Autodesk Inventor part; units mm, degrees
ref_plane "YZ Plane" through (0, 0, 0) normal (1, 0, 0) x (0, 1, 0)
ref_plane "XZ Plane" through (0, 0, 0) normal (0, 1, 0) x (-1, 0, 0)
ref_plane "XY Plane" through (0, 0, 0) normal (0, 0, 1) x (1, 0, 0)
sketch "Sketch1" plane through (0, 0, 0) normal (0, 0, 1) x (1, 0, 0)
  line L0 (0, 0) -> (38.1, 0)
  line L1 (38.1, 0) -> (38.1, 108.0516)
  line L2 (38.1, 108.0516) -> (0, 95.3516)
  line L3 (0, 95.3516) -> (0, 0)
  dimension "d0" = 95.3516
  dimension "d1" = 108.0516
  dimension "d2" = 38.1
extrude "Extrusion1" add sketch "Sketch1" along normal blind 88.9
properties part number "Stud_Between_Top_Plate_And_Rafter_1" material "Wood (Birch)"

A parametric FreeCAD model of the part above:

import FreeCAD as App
import Part
import Sketcher

V = App.Vector
Q = App.Units.Quantity

doc = App.newDocument("Part")
body = doc.addObject("PartDesign::Body", "Body")

# Sketch on XY plane
sketch1 = body.newObject("Sketcher::SketchObject", "Sketch")
sketch1.AttachmentSupport = (doc.getObject("XY_Plane"), [""])
sketch1.MapMode = "FlatFace"
sketch1.addGeometry([
    Part.LineSegment(V(0, 95, 0), V(0, 0, 0)),
    Part.LineSegment(V(0, 0, 0), V(38, 0, 0)),
    Part.LineSegment(V(38, 0, 0), V(38, 108, 0)),
    Part.LineSegment(V(38, 108, 0), V(0, 95, 0)),
], False)
sketch1.addConstraint([
    Sketcher.Constraint("Coincident", 0, 2, 1, 1),
    Sketcher.Constraint("Coincident", 1, 2, 2, 1),
    Sketcher.Constraint("Coincident", 2, 2, 3, 1),
    Sketcher.Constraint("Coincident", 3, 2, 0, 1),
    Sketcher.Constraint("Vertical", 0),
    Sketcher.Constraint("Horizontal", 1),
    Sketcher.Constraint("Vertical", 2),
    Sketcher.Constraint("Coincident", 0, 2, -1, 1),
    Sketcher.Constraint("DistanceX", 1, 1, 1, 2, Q("1.5 in")),
    Sketcher.Constraint("DistanceY", 0, 2, 0, 1, Q("3.754 in")),
    Sketcher.Constraint("DistanceY", 2, 1, 2, 2, Q("4.254 in")),
])
pad1 = body.newObject("PartDesign::Pad", "Pad")
pad1.Profile = sketch1
pad1.Length = Q("3.5 in")

doc.recompute()
